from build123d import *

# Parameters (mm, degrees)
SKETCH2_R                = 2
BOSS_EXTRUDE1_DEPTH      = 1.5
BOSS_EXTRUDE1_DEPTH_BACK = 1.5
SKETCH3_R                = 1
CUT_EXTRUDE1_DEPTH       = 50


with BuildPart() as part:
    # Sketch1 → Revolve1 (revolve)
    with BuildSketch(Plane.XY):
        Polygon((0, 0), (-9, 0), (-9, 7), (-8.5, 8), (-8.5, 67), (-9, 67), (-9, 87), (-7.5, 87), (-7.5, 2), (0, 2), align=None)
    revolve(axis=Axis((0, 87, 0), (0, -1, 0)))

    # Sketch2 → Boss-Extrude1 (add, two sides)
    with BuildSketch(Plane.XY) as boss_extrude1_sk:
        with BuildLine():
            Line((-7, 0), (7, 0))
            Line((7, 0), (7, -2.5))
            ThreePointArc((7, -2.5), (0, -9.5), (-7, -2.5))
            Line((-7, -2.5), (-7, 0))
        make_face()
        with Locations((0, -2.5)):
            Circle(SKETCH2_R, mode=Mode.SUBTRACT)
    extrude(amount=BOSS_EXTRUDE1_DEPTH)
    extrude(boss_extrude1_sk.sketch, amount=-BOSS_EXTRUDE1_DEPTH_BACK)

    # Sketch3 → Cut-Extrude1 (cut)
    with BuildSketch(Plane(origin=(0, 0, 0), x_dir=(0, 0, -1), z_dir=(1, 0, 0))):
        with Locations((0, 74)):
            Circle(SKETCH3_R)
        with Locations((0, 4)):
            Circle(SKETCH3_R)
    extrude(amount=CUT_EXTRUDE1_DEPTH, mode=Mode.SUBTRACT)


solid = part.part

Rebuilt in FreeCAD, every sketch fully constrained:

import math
import FreeCAD as App
import Part
import Sketcher
Q = App.Units.Quantity


def add_polygon(sketch, points):
    """Adds a closed chain of lines whose ends are joined by coincident constraints."""
    first, n = sketch.GeometryCount, len(points)
    for a, b in zip(points, points[1:] + points[:1]):
        sketch.addGeometry(Part.LineSegment(App.Vector(*a, 0), App.Vector(*b, 0)), False)
    for i in range(n):
        sketch.addConstraint(Sketcher.Constraint("Coincident", first + i, 2, first + (i + 1) % n, 1))

doc = App.newDocument("Part")
body = doc.addObject("PartDesign::Body", "Body")

sketch1 = doc.addObject("Sketcher::SketchObject", "Sketch")
body.addObject(sketch1)
sketch1.AttachmentSupport = (doc.XY_Plane, [""])
sketch1.MapMode = "FlatFace"
add_polygon(sketch1, [(-9, 0), (0, 0), (0, 2), (-7.5, 2), (-7.5, 87), (-9, 87), (-9, 67), (-8.5, 67), (-8.5, 8), (-9, 7)])
sketch1.addConstraint([
    Sketcher.Constraint("Horizontal", 0),
    Sketcher.Constraint("Vertical", 1),
    Sketcher.Constraint("Horizontal", 2),
    Sketcher.Constraint("Vertical", 3),
    Sketcher.Constraint("Horizontal", 4),
    Sketcher.Constraint("Vertical", 5),
    Sketcher.Constraint("Horizontal", 6),
    Sketcher.Constraint("Vertical", 7),
    Sketcher.Constraint("Vertical", 9),
    Sketcher.Constraint("Coincident", 0, 2, -1, 1),
    Sketcher.Constraint("Vertical", 5, 2, 8, 2),
    Sketcher.Constraint("DistanceX", 0, 1, 0, 2, Q("9 mm")),
    Sketcher.Constraint("DistanceY", 1, 1, 1, 2, Q("2 mm")),
    Sketcher.Constraint("DistanceY", 3, 1, 3, 2, Q("85 mm")),
    Sketcher.Constraint("DistanceY", 5, 2, 5, 1, Q("20 mm")),
    Sketcher.Constraint("DistanceY", 7, 2, 7, 1, Q("59 mm")),
    Sketcher.Constraint("DistanceY", 9, 2, 9, 1, Q("7 mm")),
    Sketcher.Constraint("DistanceX", 2, 2, 2, 1, Q("7.5 mm")),
    Sketcher.Constraint("DistanceX", 6, 1, 6, 2, Q("0.5 mm")),
])
revolution = doc.addObject("PartDesign::Revolution", "Revolution")
body.addObject(revolution)
revolution.Profile = sketch1
revolution.ReferenceAxis = (sketch1, ["V_Axis"])
revolution.Angle = 360

sketch2 = doc.addObject("Sketcher::SketchObject", "Sketch001")
body.addObject(sketch2)
sketch2.AttachmentSupport = (doc.XY_Plane, [""])
sketch2.MapMode = "FlatFace"
sketch2.addGeometry([
    Part.LineSegment(App.Vector(7, 0, 0), App.Vector(-7, 0, 0)),
    Part.LineSegment(App.Vector(-7, 0, 0), App.Vector(-7, -2.5, 0)),
    Part.ArcOfCircle(Part.Circle(App.Vector(0, -2.5, 0), App.Vector(0, 0, 1), 7), math.radians(180), math.radians(360)),
    Part.LineSegment(App.Vector(7, -2.5, 0), App.Vector(7, 0, 0)),
    Part.Circle(App.Vector(0, -2.5, 0), App.Vector(0, 0, 1), 2),
], False)
sketch2.addConstraint([
    Sketcher.Constraint("Coincident", 0, 2, 1, 1),
    Sketcher.Constraint("Tangent", 1, 2, 2, 1),
    Sketcher.Constraint("Tangent", 2, 2, 3, 1),
    Sketcher.Constraint("Coincident", 3, 2, 0, 1),
    Sketcher.Constraint("Horizontal", 0),
    Sketcher.Constraint("Vertical", 1),
    Sketcher.Constraint("Vertical", 3),
    Sketcher.Constraint("Coincident", 4, 3, 2, 3),
    Sketcher.Constraint("Symmetric", 0, 2, 3, 2, -1, 1),
    Sketcher.Constraint("Diameter", 4, Q("4 mm")),
    Sketcher.Constraint("Radius", 2, Q("7 mm")),
    Sketcher.Constraint("DistanceY", 1, 2, 1, 1, Q("2.5 mm")),
])
pad1 = doc.addObject("PartDesign::Pad", "Pad")
body.addObject(pad1)
pad1.Profile = sketch2
pad1.Type = "TwoLengths"
pad1.Length = 1.5
pad1.Length2 = 1.5

sketch3 = doc.addObject("Sketcher::SketchObject", "Sketch002")
body.addObject(sketch3)
sketch3.AttachmentSupport = (doc.YZ_Plane, [""])
sketch3.MapMode = "FlatFace"
sketch3.addGeometry([
    Part.Circle(App.Vector(74, 0, 0), App.Vector(0, 0, 1), 1),
    Part.Circle(App.Vector(4, 0, 0), App.Vector(0, 0, 1), 1),
], False)
sketch3.addConstraint([
    Sketcher.Constraint("Equal", 0, 1),
    Sketcher.Constraint("PointOnObject", 0, 3, -1),
    Sketcher.Constraint("PointOnObject", 1, 3, -1),
    Sketcher.Constraint("Diameter", 0, Q("2 mm")),
    Sketcher.Constraint("DistanceX", -1, 1, 0, 3, Q("74 mm")),
    Sketcher.Constraint("DistanceX", -1, 1, 1, 3, Q("4 mm")),
])
pocket1 = doc.addObject("PartDesign::Pocket", "Pocket")
body.addObject(pocket1)
pocket1.Profile = sketch3
pocket1.Length = 50
pocket1.Reversed = True

doc.recompute()
